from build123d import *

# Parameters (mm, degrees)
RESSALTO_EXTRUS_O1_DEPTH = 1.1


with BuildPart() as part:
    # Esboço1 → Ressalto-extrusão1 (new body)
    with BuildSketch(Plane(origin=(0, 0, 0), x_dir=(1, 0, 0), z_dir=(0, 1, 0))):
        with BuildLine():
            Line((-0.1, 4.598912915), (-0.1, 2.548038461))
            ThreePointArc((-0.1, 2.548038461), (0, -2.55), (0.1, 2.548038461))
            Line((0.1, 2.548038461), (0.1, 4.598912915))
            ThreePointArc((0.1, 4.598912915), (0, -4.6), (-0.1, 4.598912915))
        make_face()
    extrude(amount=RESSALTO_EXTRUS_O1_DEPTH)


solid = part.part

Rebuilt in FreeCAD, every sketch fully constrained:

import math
import FreeCAD as App
import Part
import Sketcher

V = App.Vector

doc = App.newDocument("Part")
body = doc.addObject("PartDesign::Body", "Body")

# Sketch on XZ plane
sketch1 = body.newObject("Sketcher::SketchObject", "Sketch")
sketch1.AttachmentSupport = (doc.getObject("XZ_Plane"), [""])
sketch1.MapMode = "FlatFace"
sketch1.addGeometry([
    Part.LineSegment(V(-0.1, -2.55, 0), V(-0.1, -4.6, 0)),
    Part.ArcOfCircle(Part.Circle(V(0, 0, 0), V(0, 0, 1), 4.6), math.radians(-89), math.radians(269)),
    Part.LineSegment(V(0.1, -4.6, 0), V(0.1, -2.55, 0)),
    Part.ArcOfCircle(Part.Circle(V(0, 0, 0), V(0, 0, 1), 2.55), math.radians(-88), math.radians(268)),
], False)
sketch1.addConstraint([
    Sketcher.Constraint("Coincident", 0, 2, 1, 2),
    Sketcher.Constraint("Coincident", 1, 1, 2, 1),
    Sketcher.Constraint("Coincident", 2, 2, 3, 1),
    Sketcher.Constraint("Coincident", 3, 2, 0, 1),
    Sketcher.Constraint("Vertical", 0),
    Sketcher.Constraint("Vertical", 2),
    Sketcher.Constraint("Coincident", 1, 3, -1, 1),
    Sketcher.Constraint("Coincident", 3, 3, -1, 1),
    Sketcher.Constraint("Horizontal", 0, 2, 1, 1),
    Sketcher.Constraint("Radius", 1, 4.6),
    Sketcher.Constraint("Radius", 3, 2.55),
    Sketcher.Constraint("DistanceX", 0, 2, -1, 1, 0.1),
])
pad1 = body.newObject("PartDesign::Pad", "Pad")
pad1.Profile = sketch1
pad1.Length = 1.1
pad1.Reversed = True

doc.recompute()
